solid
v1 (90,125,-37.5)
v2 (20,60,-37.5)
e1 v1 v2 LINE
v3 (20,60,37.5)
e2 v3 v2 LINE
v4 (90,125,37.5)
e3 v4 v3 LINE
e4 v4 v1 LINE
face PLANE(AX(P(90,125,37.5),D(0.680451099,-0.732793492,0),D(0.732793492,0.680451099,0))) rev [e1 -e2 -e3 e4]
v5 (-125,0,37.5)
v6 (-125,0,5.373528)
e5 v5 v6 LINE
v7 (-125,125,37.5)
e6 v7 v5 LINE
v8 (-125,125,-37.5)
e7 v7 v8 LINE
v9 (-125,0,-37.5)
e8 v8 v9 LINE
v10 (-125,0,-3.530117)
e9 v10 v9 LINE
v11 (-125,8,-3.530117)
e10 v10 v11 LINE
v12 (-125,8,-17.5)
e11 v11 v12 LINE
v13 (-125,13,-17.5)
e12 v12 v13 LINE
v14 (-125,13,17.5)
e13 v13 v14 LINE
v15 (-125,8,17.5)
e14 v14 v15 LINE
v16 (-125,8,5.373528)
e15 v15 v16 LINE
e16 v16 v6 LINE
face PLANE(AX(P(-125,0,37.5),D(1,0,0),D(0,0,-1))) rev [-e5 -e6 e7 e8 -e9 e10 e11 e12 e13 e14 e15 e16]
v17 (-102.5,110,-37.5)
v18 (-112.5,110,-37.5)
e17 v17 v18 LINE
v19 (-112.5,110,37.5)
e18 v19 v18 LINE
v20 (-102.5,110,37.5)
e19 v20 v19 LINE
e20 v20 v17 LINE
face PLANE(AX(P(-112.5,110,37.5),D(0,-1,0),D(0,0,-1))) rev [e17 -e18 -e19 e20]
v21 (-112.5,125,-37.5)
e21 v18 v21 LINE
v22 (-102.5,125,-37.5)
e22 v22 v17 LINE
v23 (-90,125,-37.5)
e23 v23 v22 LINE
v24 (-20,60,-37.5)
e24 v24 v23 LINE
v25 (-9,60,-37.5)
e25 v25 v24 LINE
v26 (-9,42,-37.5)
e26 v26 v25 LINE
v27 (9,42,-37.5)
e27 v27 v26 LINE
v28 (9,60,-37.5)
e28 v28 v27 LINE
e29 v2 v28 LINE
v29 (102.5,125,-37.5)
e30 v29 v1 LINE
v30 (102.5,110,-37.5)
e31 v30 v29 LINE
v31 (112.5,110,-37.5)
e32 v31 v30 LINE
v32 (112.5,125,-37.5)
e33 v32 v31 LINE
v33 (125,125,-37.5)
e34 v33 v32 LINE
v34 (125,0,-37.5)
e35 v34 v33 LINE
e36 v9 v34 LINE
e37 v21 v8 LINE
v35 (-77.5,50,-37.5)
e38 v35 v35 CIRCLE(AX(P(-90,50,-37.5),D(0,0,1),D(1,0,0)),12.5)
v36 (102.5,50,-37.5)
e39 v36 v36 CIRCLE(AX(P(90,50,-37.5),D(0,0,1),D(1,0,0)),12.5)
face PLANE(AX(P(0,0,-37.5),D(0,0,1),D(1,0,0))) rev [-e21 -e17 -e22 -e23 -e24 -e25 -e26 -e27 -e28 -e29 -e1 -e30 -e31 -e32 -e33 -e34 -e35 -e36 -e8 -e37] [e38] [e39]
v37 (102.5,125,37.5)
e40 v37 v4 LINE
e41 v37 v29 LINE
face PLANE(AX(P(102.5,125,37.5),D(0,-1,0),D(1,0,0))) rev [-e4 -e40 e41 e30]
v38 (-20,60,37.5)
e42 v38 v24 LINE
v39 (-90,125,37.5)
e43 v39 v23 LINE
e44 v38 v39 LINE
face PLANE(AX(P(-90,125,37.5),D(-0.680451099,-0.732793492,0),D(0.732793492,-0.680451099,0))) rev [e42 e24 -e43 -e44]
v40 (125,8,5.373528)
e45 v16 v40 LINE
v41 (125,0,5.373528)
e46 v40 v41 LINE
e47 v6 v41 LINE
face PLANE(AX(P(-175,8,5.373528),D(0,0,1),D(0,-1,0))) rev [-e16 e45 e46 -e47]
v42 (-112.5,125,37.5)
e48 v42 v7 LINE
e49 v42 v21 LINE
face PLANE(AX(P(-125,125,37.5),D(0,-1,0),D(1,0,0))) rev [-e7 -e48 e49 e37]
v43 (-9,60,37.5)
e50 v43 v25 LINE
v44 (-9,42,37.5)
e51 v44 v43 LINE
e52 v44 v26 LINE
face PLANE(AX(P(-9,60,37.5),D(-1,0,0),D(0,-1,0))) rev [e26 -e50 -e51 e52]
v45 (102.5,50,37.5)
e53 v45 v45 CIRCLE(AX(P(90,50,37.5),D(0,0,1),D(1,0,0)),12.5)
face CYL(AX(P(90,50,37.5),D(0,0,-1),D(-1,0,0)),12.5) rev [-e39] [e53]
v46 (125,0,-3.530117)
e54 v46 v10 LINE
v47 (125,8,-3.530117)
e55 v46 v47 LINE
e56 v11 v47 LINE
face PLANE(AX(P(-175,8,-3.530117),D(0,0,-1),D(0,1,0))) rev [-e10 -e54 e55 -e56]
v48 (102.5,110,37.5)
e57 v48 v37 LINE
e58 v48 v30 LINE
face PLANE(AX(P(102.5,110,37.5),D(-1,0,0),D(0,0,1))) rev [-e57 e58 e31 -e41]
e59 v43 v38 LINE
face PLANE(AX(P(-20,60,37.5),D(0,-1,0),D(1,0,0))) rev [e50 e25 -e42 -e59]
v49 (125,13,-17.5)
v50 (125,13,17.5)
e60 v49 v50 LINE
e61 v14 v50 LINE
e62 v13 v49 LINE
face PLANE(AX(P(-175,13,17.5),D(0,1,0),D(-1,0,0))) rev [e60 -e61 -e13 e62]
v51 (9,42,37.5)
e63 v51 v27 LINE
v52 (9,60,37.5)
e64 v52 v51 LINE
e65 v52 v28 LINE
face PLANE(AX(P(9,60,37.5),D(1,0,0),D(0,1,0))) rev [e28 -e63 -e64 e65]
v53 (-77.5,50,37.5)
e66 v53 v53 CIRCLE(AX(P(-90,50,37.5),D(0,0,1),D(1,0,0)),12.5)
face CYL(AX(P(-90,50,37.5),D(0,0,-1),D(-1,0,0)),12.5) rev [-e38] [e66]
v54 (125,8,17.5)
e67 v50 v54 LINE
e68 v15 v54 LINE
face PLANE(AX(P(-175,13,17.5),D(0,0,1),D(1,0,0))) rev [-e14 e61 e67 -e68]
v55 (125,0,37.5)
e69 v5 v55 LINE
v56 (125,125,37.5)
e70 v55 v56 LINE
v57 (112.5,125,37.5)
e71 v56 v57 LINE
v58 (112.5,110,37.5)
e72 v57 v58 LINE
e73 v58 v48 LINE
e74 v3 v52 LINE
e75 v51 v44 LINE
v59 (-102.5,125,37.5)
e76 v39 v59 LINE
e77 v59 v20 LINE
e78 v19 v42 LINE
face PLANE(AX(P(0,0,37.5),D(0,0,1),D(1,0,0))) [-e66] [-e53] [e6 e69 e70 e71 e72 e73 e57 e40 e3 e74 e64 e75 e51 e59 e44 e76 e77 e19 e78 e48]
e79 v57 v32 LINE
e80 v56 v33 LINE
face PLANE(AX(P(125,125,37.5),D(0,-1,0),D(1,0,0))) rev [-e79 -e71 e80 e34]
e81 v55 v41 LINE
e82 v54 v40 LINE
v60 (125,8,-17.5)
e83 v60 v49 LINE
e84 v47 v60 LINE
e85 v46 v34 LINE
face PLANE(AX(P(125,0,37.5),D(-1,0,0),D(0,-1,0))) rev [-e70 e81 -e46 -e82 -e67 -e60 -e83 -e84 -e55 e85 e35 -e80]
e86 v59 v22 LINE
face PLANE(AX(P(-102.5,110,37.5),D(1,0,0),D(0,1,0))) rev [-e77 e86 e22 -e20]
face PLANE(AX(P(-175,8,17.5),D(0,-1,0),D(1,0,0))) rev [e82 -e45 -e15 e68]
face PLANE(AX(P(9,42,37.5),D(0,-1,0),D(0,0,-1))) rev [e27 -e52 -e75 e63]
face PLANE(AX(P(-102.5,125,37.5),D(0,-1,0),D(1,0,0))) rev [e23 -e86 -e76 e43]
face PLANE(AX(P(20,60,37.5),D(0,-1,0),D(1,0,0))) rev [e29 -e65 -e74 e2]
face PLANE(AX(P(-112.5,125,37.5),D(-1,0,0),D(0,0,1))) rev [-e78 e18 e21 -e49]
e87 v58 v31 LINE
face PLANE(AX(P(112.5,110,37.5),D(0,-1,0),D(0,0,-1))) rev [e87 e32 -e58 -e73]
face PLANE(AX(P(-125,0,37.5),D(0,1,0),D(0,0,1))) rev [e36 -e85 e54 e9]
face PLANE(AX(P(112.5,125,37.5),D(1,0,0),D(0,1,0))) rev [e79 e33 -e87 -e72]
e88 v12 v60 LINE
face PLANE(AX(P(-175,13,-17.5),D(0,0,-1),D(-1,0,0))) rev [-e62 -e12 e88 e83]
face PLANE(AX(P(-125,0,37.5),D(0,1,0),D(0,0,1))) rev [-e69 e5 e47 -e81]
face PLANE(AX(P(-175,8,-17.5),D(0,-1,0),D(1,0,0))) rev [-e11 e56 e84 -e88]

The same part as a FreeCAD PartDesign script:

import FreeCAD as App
import Part
import Sketcher

V = App.Vector


def add_polygon(sketch, points):
    """Adds a closed chain of lines whose ends are joined by coincident constraints."""
    first, n = sketch.GeometryCount, len(points)
    for a, b in zip(points, points[1:] + points[:1]):
        sketch.addGeometry(Part.LineSegment(App.Vector(*a, 0), App.Vector(*b, 0)), False)
    for i in range(n):
        sketch.addConstraint(Sketcher.Constraint("Coincident", first + i, 2, first + (i + 1) % n, 1))

doc = App.newDocument("Part")
body = doc.addObject("PartDesign::Body", "Body")

# Sketch on XY plane
sketch1 = body.newObject("Sketcher::SketchObject", "Sketch")
sketch1.AttachmentSupport = (doc.getObject("XY_Plane"), [""])
sketch1.MapMode = "FlatFace"
add_polygon(sketch1, [(-125, 0), (125, 0), (125, 125), (112, 125), (112, 110), (102, 110), (102, 125), (90, 125), (20, 60), (9, 60), (9, 42), (-9, 42), (-9, 60), (-20, 60), (-90, 125), (-102, 125), (-102, 110), (-112, 110), (-112, 125), (-125, 125)])  # lines 0-19
sketch1.addGeometry(Part.Circle(V(-90, 50, 0), V(0, 0, 1), 12), False)  # 20
sketch1.addGeometry(Part.Circle(V(90, 50, 0), V(0, 0, 1), 12), False)  # 21
sketch1.addConstraint(Sketcher.Constraint("Horizontal", 0))
sketch1.addConstraint(Sketcher.Constraint("Vertical", 1))
sketch1.addConstraint(Sketcher.Constraint("Horizontal", 2))
sketch1.addConstraint(Sketcher.Constraint("Vertical", 3))
sketch1.addConstraint(Sketcher.Constraint("Horizontal", 4))
sketch1.addConstraint(Sketcher.Constraint("Vertical", 5))
sketch1.addConstraint(Sketcher.Constraint("Horizontal", 6))
sketch1.addConstraint(Sketcher.Constraint("Horizontal", 8))
sketch1.addConstraint(Sketcher.Constraint("Vertical", 9))
sketch1.addConstraint(Sketcher.Constraint("Horizontal", 10))
sketch1.addConstraint(Sketcher.Constraint("Vertical", 11))
sketch1.addConstraint(Sketcher.Constraint("Horizontal", 12))
sketch1.addConstraint(Sketcher.Constraint("Horizontal", 14))
sketch1.addConstraint(Sketcher.Constraint("Vertical", 15))
sketch1.addConstraint(Sketcher.Constraint("Horizontal", 16))
sketch1.addConstraint(Sketcher.Constraint("Vertical", 17))
sketch1.addConstraint(Sketcher.Constraint("Horizontal", 18))
sketch1.addConstraint(Sketcher.Constraint("Vertical", 19))
sketch1.addConstraint(Sketcher.Constraint("Equal", 20, 21))
sketch1.addConstraint(Sketcher.Constraint("Symmetric", 0, 2, 19, 2, -1, 1))
sketch1.addConstraint(Sketcher.Constraint("Symmetric", 20, 3, 21, 3, -2))
sketch1.addConstraint(Sketcher.Constraint("Symmetric", 8, 2, 11, 2, -2))
sketch1.addConstraint(Sketcher.Constraint("Symmetric", 6, 2, 13, 2, -2))
sketch1.addConstraint(Sketcher.Constraint("Symmetric", 4, 2, 15, 2, -2))
sketch1.addConstraint(Sketcher.Constraint("Symmetric", 2, 2, 17, 2, -2))
sketch1.addConstraint(Sketcher.Constraint("Horizontal", 2, 2, 5, 2))
sketch1.addConstraint(Sketcher.Constraint("Vertical", 21, 3, 6, 2))
sketch1.addConstraint(Sketcher.Constraint("Equal", 2, 6))
sketch1.addConstraint(Sketcher.Constraint("Equal", 8, 12))
sketch1.addConstraint(Sketcher.Constraint("Equal", 10, 9))
sketch1.addConstraint(Sketcher.Constraint("Diameter", 20, 25.0))
sketch1.addConstraint(Sketcher.Constraint("DistanceX", 0, 1, 0, 2, 250.0))
sketch1.addConstraint(Sketcher.Constraint("DistanceX", 4, 2, 4, 1, 10.0))
sketch1.addConstraint(Sketcher.Constraint("DistanceX", 8, 2, 8, 1, 11.0))
sketch1.addConstraint(Sketcher.Constraint("DistanceX", 10, 2, 10, 1, 18.0))
sketch1.addConstraint(Sketcher.Constraint("DistanceY", 1, 1, 1, 2, 125.0))
sketch1.addConstraint(Sketcher.Constraint("DistanceY", 3, 2, 3, 1, 15.0))
sketch1.addConstraint(Sketcher.Constraint("DistanceX", 2, 2, 2, 1, 12.5))
sketch1.addConstraint(Sketcher.Constraint("DistanceY", -1, 1, 20, 3, 50.0))
sketch1.addConstraint(Sketcher.Constraint("DistanceY", -1, 1, 7, 2, 60.0))
pad1 = body.newObject("PartDesign::Pad", "Pad")
pad1.Profile = sketch1
pad1.Length = 75
pad1.Midplane = True

# Sketch on YZ plane
sketch2 = body.newObject("Sketcher::SketchObject", "Sketch001")
sketch2.AttachmentSupport = (doc.getObject("YZ_Plane"), [""])
sketch2.MapMode = "FlatFace"
sketch2.AttachmentOffset = App.Placement(V(0, 0, 125), App.Rotation())
add_polygon(sketch2, [(13, -18), (13, 18), (8, 18), (8, 5), (0, 5), (0, -4), (8, -4), (8, -18)])  # lines 0-7
sketch2.addConstraint(Sketcher.Constraint("Vertical", 0))
sketch2.addConstraint(Sketcher.Constraint("Horizontal", 1))
sketch2.addConstraint(Sketcher.Constraint("Vertical", 2))
sketch2.addConstraint(Sketcher.Constraint("Horizontal", 3))
sketch2.addConstraint(Sketcher.Constraint("Vertical", 4))
sketch2.addConstraint(Sketcher.Constraint("Horizontal", 5))
sketch2.addConstraint(Sketcher.Constraint("Vertical", 6))
sketch2.addConstraint(Sketcher.Constraint("Horizontal", 7))
sketch2.addConstraint(Sketcher.Constraint("Symmetric", 1, 2, 6, 2, -1))
sketch2.addConstraint(Sketcher.Constraint("PointOnObject", 3, 2, -2))
sketch2.addConstraint(Sketcher.Constraint("DistanceX", 1, 2, 1, 1, 5.0))
sketch2.addConstraint(Sketcher.Constraint("DistanceX", 3, 2, 3, 1, 8.0))
sketch2.addConstraint(Sketcher.Constraint("DistanceY", 0, 1, 0, 2, 35.0))
sketch2.addConstraint(Sketcher.Constraint("DistanceY", 2, 2, 2, 1, 12.126472))
sketch2.addConstraint(Sketcher.Constraint("DistanceY", 4, 2, 4, 1, 8.903646))
pocket1 = body.newObject("PartDesign::Pocket", "Pocket")
pocket1.Profile = sketch2
pocket1.Length = 300

doc.recompute()
